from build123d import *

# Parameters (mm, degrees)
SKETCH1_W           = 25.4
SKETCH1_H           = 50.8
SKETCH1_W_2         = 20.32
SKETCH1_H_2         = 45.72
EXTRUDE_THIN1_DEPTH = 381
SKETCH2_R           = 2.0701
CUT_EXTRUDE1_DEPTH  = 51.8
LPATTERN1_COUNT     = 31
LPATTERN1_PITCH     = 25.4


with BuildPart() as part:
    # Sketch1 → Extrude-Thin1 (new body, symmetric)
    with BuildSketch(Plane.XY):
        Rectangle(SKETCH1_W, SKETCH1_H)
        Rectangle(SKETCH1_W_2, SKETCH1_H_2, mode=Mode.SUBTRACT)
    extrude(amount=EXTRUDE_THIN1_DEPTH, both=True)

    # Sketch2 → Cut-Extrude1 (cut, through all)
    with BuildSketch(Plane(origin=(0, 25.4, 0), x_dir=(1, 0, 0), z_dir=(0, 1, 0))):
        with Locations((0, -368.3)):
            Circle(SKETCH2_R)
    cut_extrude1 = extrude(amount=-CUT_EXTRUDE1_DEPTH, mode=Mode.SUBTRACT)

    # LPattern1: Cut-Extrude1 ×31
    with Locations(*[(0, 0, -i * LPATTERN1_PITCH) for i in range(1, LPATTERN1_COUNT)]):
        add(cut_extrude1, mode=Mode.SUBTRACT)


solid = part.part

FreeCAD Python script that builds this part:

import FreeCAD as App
import Part
import Sketcher
from FreeCAD import Vector
Q = App.Units.Quantity


def add_polygon(sketch, points):
    """Adds a closed chain of lines whose ends are joined by coincident constraints."""
    first, n = sketch.GeometryCount, len(points)
    for a, b in zip(points, points[1:] + points[:1]):
        sketch.addGeometry(Part.LineSegment(App.Vector(*a, 0), App.Vector(*b, 0)), False)
    for i in range(n):
        sketch.addConstraint(Sketcher.Constraint("Coincident", first + i, 2, first + (i + 1) % n, 1))

doc = App.newDocument("Part")
params = doc.addObject("Spreadsheet::Sheet", "Params")
for row, (alias, value) in enumerate([
    ("sketch1_width", "1 in"),
    ("sketch1_height", "2 in"),
    ("sketch1_width2", "0.8 in"),
    ("sketch1_height2", "1.8 in"),
    ("pad1_length", "30 in"),
    ("sketch2_diameter", "0.163 in"),
    ("linearpattern_pitch", "1 in"),
], start=1):
    params.set(f"A{row}", alias)
    params.set(f"B{row}", "=" + value)
    params.setAlias(f"B{row}", alias)

body = doc.addObject("PartDesign::Body", "Body")

sketch1 = body.newObject("Sketcher::SketchObject", "Sketch")
sketch1.AttachmentSupport = (doc.getObject("XY_Plane"), [""])
sketch1.MapMode = "FlatFace"
add_polygon(sketch1, [(-13, 25), (-13, -25), (13, -25), (13, 25)])
add_polygon(sketch1, [(10, -23), (-10, -23), (-10, 23), (10, 23)])
sketch1.addConstraint(Sketcher.Constraint("Vertical", 0))
sketch1.addConstraint(Sketcher.Constraint("Horizontal", 1))
sketch1.addConstraint(Sketcher.Constraint("Vertical", 2))
sketch1.addConstraint(Sketcher.Constraint("Horizontal", 3))
sketch1.addConstraint(Sketcher.Constraint("Horizontal", 4))
sketch1.addConstraint(Sketcher.Constraint("Vertical", 5))
sketch1.addConstraint(Sketcher.Constraint("Horizontal", 6))
sketch1.addConstraint(Sketcher.Constraint("Vertical", 7))
sketch1.addConstraint(Sketcher.Constraint("Symmetric", 0, 2, 2, 2, -1, 1))
sketch1.addConstraint(Sketcher.Constraint("Symmetric", 4, 2, 6, 2, -1, 1))
sketch1.addConstraint(Sketcher.Constraint("DistanceX", 1, 1, 1, 2, Q("1 in")))
sketch1.addConstraint(Sketcher.Constraint("DistanceY", 0, 2, 0, 1, Q("2 in")))
sketch1.addConstraint(Sketcher.Constraint("DistanceX", 4, 2, 4, 1, Q("0.8 in")))
sketch1.addConstraint(Sketcher.Constraint("DistanceY", 5, 1, 5, 2, Q("1.8 in")))
sketch1.setExpression("Constraints[18]", "Params.sketch1_width")
sketch1.setExpression("Constraints[19]", "Params.sketch1_height")
sketch1.setExpression("Constraints[20]", "Params.sketch1_width2")
sketch1.setExpression("Constraints[21]", "Params.sketch1_height2")
pad1 = body.newObject("PartDesign::Pad", "Pad")
pad1.Profile = sketch1
pad1.setExpression("Length", "Params.pad1_length")
pad1.Midplane = True

sketch2 = body.newObject("Sketcher::SketchObject", "Sketch001")
sketch2.AttachmentSupport = (doc.getObject("XZ_Plane"), [""])
sketch2.MapMode = "FlatFace"
sketch2.AttachmentOffset = App.Placement(Vector(0, 0, -1 * 25.4), App.Rotation())
sketch2.addGeometry(Part.Circle(Vector(0, 368.3, 0), Vector(0, 0, 1), 2.1), False)
sketch2.addConstraint(Sketcher.Constraint("PointOnObject", 0, 3, -2))
sketch2.addConstraint(Sketcher.Constraint("Diameter", 0, Q("0.163 in")))
sketch2.addConstraint(Sketcher.Constraint("DistanceY", -1, 1, 0, 3, Q("14.5 in")))
sketch2.setExpression("Constraints[1]", "Params.sketch2_diameter")
pocket1 = body.newObject("PartDesign::Pocket", "Pocket")
pocket1.Profile = sketch2
pocket1.Type = "ThroughAll"
pocket1.Reversed = True
doc.recompute()

linearpattern = body.newObject("PartDesign::LinearPattern", "LinearPattern")
linearpattern.Originals = [pocket1]
linearpattern.Direction = (doc.getObject("Z_Axis"), [""])
linearpattern.Mode = "offset"
linearpattern.setExpression("Offset", "Params.linearpattern_pitch")
linearpattern.Occurrences = 31
linearpattern.Reversed = True
body.Tip = linearpattern

doc.recompute()
